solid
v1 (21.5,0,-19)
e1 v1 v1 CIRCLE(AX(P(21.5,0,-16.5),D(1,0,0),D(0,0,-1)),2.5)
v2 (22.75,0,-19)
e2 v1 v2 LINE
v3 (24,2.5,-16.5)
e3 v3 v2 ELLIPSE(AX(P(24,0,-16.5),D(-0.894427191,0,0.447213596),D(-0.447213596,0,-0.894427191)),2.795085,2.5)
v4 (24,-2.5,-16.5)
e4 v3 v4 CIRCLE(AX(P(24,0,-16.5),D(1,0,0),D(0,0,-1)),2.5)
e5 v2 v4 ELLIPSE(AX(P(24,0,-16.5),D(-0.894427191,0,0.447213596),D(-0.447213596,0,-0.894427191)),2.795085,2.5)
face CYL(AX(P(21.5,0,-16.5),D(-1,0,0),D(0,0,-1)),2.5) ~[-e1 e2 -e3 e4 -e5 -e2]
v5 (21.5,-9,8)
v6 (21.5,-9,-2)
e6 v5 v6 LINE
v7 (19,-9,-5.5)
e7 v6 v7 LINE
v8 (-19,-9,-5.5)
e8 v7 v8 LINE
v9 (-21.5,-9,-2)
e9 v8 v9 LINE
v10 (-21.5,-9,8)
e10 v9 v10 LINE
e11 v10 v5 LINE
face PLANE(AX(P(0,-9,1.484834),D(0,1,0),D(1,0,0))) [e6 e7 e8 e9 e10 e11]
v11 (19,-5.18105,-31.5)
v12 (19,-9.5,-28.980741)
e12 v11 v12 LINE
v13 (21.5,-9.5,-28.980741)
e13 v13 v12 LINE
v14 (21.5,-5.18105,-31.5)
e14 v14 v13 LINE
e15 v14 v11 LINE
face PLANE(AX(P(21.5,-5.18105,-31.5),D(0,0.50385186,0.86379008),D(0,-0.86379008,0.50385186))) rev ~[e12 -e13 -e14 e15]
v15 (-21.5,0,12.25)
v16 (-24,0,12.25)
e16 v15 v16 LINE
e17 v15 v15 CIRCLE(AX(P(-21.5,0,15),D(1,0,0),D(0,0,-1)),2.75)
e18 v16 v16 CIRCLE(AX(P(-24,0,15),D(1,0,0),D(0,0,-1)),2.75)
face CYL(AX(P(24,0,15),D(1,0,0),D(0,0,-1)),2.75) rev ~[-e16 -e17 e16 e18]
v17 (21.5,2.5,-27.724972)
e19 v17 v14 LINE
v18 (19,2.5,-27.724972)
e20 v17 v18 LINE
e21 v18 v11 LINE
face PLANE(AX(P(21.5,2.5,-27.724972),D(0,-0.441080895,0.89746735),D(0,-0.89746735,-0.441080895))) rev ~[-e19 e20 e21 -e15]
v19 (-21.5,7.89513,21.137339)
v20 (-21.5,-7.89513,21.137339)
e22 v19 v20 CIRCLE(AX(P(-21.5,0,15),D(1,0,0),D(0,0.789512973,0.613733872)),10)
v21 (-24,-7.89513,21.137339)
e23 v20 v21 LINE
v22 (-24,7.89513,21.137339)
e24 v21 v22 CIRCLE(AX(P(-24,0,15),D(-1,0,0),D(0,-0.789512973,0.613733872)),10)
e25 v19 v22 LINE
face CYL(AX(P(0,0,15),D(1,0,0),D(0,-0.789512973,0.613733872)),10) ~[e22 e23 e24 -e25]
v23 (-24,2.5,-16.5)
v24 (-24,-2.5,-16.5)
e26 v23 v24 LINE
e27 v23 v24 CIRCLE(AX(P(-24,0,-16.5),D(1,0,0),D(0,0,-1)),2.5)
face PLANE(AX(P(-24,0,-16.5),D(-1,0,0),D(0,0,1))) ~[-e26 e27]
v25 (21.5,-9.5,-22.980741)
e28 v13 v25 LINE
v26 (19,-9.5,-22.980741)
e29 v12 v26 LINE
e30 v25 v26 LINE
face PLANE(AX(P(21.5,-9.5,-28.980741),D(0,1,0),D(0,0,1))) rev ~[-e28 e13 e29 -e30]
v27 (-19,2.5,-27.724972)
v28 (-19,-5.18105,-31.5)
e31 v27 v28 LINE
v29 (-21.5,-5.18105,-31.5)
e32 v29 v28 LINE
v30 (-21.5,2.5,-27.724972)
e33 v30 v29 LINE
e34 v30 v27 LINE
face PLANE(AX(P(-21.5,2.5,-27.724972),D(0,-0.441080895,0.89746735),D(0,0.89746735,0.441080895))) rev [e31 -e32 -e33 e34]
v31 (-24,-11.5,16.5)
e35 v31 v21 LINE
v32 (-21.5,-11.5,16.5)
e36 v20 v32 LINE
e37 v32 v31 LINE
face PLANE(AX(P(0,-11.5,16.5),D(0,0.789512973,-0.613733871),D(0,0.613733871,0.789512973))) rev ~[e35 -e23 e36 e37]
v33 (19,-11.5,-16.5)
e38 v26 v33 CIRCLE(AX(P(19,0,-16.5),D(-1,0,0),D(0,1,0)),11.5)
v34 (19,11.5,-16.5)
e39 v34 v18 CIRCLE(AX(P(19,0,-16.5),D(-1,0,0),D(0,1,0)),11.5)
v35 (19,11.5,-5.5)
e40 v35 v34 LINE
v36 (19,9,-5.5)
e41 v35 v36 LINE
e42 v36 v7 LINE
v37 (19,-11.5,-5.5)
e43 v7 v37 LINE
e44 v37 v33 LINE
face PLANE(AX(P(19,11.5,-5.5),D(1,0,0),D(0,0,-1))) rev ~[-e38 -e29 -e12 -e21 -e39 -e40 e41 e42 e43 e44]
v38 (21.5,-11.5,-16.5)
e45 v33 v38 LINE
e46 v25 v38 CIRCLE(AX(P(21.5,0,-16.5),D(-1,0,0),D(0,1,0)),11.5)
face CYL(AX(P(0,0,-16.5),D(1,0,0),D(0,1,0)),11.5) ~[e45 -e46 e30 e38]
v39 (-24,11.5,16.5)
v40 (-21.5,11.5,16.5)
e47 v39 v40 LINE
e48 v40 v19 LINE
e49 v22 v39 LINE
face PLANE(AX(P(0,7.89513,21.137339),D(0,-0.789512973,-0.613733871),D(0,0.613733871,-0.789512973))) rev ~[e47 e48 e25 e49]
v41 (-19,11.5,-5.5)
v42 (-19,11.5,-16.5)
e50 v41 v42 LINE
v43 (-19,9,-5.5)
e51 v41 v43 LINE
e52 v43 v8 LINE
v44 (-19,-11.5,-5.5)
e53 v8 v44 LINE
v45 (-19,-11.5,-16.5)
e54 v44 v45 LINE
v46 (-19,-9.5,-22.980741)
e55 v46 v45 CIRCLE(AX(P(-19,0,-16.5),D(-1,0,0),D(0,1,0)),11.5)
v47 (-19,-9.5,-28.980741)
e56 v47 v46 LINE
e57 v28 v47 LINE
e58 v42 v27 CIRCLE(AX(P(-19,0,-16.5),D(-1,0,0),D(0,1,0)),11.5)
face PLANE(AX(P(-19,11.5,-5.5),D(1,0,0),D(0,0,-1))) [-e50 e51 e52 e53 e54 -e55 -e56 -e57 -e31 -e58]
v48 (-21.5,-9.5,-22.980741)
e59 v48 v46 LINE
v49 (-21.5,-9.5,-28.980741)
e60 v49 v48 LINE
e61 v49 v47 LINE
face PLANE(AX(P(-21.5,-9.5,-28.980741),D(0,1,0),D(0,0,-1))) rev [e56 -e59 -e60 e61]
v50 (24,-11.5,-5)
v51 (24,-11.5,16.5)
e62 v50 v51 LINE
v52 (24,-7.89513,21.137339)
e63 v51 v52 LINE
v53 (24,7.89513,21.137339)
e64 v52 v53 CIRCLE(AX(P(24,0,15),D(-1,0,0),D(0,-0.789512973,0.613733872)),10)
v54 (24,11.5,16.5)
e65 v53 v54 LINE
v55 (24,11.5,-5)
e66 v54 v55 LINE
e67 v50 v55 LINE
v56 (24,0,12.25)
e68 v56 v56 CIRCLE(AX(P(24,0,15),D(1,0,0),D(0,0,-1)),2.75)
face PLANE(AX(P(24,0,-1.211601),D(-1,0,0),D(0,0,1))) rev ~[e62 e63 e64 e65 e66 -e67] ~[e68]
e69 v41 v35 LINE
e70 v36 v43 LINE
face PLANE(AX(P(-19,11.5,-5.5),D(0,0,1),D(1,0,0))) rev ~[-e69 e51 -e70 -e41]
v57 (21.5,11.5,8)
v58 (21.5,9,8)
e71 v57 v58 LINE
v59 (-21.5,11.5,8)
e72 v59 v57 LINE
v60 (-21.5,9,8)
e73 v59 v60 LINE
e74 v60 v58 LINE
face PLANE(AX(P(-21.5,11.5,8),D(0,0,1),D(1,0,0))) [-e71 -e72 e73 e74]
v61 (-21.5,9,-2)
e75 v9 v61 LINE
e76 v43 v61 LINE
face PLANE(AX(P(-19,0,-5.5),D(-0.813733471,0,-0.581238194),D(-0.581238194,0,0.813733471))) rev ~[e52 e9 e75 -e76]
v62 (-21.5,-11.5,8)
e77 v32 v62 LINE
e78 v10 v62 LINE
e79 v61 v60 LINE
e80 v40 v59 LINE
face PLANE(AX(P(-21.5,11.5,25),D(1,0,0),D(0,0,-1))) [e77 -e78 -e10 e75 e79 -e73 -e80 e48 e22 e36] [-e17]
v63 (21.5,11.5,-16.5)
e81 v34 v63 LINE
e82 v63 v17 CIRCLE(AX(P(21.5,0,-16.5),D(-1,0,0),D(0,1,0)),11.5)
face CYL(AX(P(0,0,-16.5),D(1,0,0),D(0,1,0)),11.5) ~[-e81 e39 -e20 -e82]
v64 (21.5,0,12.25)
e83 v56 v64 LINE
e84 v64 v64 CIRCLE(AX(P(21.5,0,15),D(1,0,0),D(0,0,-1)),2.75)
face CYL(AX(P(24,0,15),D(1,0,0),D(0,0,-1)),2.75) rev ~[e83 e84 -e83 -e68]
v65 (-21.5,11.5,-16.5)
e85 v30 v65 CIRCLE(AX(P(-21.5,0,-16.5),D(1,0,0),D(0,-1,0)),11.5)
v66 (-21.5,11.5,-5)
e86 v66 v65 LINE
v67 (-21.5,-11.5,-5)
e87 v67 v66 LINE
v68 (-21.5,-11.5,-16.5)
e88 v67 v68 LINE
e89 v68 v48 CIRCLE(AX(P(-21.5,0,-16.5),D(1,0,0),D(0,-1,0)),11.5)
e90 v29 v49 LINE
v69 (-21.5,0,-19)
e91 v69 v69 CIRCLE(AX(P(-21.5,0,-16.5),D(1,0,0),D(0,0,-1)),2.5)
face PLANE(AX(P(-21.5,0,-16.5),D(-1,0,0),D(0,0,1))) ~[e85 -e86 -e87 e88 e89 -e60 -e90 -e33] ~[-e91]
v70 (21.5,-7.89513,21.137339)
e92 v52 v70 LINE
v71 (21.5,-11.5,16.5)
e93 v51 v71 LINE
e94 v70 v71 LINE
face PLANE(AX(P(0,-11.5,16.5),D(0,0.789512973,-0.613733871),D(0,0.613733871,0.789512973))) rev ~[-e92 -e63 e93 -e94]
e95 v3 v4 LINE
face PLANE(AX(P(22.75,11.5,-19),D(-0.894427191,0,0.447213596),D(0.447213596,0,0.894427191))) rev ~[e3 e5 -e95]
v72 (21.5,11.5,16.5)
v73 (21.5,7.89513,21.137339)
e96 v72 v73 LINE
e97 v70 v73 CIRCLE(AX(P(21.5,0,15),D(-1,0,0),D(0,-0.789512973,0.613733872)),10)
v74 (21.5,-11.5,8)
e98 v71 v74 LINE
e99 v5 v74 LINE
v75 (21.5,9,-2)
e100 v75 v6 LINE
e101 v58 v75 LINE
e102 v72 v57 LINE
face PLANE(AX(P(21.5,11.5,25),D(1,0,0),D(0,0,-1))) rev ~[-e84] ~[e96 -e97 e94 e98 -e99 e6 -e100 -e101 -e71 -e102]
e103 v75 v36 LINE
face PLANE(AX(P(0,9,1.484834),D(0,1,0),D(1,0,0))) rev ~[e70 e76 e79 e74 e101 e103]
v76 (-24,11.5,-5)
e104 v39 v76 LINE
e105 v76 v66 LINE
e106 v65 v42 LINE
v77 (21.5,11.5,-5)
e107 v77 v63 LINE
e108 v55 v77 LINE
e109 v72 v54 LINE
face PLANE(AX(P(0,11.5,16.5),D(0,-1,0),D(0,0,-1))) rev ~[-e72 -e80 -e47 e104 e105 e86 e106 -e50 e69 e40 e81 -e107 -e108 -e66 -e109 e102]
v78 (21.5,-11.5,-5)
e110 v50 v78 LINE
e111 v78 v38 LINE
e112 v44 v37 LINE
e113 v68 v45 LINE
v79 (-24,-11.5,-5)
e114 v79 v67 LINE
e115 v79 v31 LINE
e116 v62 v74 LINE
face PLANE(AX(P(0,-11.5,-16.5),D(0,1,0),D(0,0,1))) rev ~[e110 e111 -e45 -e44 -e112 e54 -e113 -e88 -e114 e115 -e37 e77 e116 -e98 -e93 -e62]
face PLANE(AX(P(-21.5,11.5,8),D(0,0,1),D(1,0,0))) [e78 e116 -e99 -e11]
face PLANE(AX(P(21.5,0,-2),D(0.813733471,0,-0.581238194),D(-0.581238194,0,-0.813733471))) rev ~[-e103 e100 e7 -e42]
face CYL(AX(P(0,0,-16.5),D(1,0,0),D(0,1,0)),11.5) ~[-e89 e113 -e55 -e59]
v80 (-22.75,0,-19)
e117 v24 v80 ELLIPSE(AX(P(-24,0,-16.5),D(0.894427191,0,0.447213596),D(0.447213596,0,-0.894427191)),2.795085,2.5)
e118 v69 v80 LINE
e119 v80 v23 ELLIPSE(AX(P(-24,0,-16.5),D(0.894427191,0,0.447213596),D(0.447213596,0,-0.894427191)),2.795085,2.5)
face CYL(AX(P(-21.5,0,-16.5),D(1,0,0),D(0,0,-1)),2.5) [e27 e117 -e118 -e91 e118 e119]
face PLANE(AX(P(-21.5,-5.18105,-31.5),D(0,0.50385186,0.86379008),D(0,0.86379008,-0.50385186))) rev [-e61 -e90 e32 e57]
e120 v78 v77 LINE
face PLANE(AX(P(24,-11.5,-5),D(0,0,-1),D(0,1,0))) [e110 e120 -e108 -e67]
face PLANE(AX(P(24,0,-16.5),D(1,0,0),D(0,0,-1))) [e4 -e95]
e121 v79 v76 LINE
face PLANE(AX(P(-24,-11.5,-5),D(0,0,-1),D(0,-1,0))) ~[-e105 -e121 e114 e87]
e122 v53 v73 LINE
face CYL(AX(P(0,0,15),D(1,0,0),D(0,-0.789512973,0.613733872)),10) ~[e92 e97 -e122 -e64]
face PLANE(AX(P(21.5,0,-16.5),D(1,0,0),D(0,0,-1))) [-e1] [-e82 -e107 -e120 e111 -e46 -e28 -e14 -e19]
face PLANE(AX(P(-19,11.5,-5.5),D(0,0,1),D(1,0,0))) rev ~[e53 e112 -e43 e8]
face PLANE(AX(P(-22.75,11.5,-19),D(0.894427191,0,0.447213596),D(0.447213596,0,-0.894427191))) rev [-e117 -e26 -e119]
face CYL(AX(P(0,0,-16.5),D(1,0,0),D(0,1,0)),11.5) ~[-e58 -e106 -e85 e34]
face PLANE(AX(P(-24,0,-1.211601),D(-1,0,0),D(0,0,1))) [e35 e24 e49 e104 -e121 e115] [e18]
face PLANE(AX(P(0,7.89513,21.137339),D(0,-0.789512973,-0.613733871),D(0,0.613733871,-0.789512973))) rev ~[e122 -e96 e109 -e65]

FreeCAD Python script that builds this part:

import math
import FreeCAD as App
import Part
import Sketcher

V = App.Vector


def add_polygon(sketch, points):
    """Adds a closed chain of lines whose ends are joined by coincident constraints."""
    first, n = sketch.GeometryCount, len(points)
    for a, b in zip(points, points[1:] + points[:1]):
        sketch.addGeometry(Part.LineSegment(App.Vector(*a, 0), App.Vector(*b, 0)), False)
    for i in range(n):
        sketch.addConstraint(Sketcher.Constraint("Coincident", first + i, 2, first + (i + 1) % n, 1))

doc = App.newDocument("Part")
body = doc.addObject("PartDesign::Body", "Body")

# Sketch on YZ plane
sketch1 = body.newObject("Sketcher::SketchObject", "Sketch")
sketch1.AttachmentSupport = (doc.getObject("YZ_Plane"), [""])
sketch1.MapMode = "FlatFace"
sketch1.addGeometry([
    Part.LineSegment(V(-11.5, 16.5, 0), V(-11.5, -16.5, 0)),  # 0
    Part.ArcOfCircle(Part.Circle(V(0, -16.5, 0), V(0, 0, 1), 11.5), math.radians(180), math.radians(360)),  # 1
    Part.LineSegment(V(11.5, -16.5, 0), V(11.5, 16.5, 0)),  # 2
    Part.LineSegment(V(11.5, 16.5, 0), V(7.89513, 21.137339, 0)),  # 3
    Part.ArcOfCircle(Part.Circle(V(0, 15, 0), V(0, 0, 1), 10), math.radians(37.859979), math.radians(142.140021)),  # 4
    Part.LineSegment(V(-7.89513, 21.137339, 0), V(-11.5, 16.5, 0)),  # 5
], False)
sketch1.addConstraint([
    Sketcher.Constraint("Tangent", 0, 2, 1, 1),
    Sketcher.Constraint("Tangent", 1, 2, 2, 1),
    Sketcher.Constraint("Coincident", 2, 2, 3, 1),
    Sketcher.Constraint("Tangent", 3, 2, 4, 1),
    Sketcher.Constraint("Tangent", 4, 2, 5, 1),
    Sketcher.Constraint("Coincident", 5, 2, 0, 1),
    Sketcher.Constraint("Vertical", 0),
    Sketcher.Constraint("Vertical", 2),
    Sketcher.Constraint("Symmetric", 0, 2, 2, 2, -1, 1),
    Sketcher.Constraint("Symmetric", 3, 2, 4, 2, -2),
    Sketcher.Constraint("Radius", 4, 10.0),
    Sketcher.Constraint("Radius", 1, 11.5),
    Sketcher.Constraint("DistanceY", 0, 2, 0, 1, 33.0),
    Sketcher.Constraint("DistanceY", -1, 1, 4, 3, 15.0),
])
pad1 = body.newObject("PartDesign::Pad", "Pad")
pad1.Profile = sketch1
pad1.Length = 48
pad1.Midplane = True

# Sketch on YZ plane
sketch2 = body.newObject("Sketcher::SketchObject", "Sketch001")
sketch2.AttachmentSupport = (doc.getObject("YZ_Plane"), [""])
sketch2.MapMode = "FlatFace"
sketch2.AttachmentOffset = App.Placement(V(0, 0, 24), App.Rotation())
add_polygon(sketch2, [(11.5, -5), (-11.5, -5), (-11.5, -28), (11.5, -28)])  # lines 0-3
sketch2.addConstraint([
    Sketcher.Constraint("Horizontal", 0),
    Sketcher.Constraint("Vertical", 1),
    Sketcher.Constraint("Horizontal", 2),
    Sketcher.Constraint("Vertical", 3),
    Sketcher.Constraint("Equal", 2, 1),
    Sketcher.Constraint("DistanceX", 0, 2, 0, 1, 23.0),
    Sketcher.Constraint("DistanceY", 0, 2, -1, 1, 5.0),
    Sketcher.Constraint("DistanceX", 0, 2, -1, 1, 11.5),
])
pocket1 = body.newObject("PartDesign::Pocket", "Pocket")
pocket1.Profile = sketch2
pocket1.Length = 2.5
doc.recompute()

mirrored = body.newObject("PartDesign::Mirrored", "Mirrored")
mirrored.Originals = [pocket1]
mirrored.MirrorPlane = (doc.getObject("YZ_Plane"), [""])
body.Tip = mirrored

# Sketch on XZ plane
sketch3 = body.newObject("Sketcher::SketchObject", "Sketch002")
sketch3.AttachmentSupport = (doc.getObject("XZ_Plane"), [""])
sketch3.MapMode = "FlatFace"
sketch3.AttachmentOffset = App.Placement(V(0, 0, -11.5), App.Rotation())
add_polygon(sketch3, [(-21.5, 8), (-21.5, 25), (21.5, 25), (21.5, 8)])  # lines 0-3
sketch3.addConstraint([
    Sketcher.Constraint("Vertical", 0),
    Sketcher.Constraint("Horizontal", 1),
    Sketcher.Constraint("Vertical", 2),
    Sketcher.Constraint("Horizontal", 3),
    Sketcher.Constraint("DistanceX", 1, 1, 1, 2, 43.0),
    Sketcher.Constraint("DistanceY", 0, 1, 0, 2, 17.0),
    Sketcher.Constraint("DistanceY", -1, 1, 0, 2, 25.0),
    Sketcher.Constraint("DistanceX", 0, 2, -1, 1, 21.5),
])
pocket2 = body.newObject("PartDesign::Pocket", "Pocket001")
pocket2.Profile = sketch3
pocket2.Type = "ThroughAll"
pocket2.Reversed = True

# Sketch on XZ plane
sketch4 = body.newObject("Sketcher::SketchObject", "Sketch003")
sketch4.AttachmentSupport = (doc.getObject("XZ_Plane"), [""])
sketch4.MapMode = "FlatFace"
sketch4.AttachmentOffset = App.Placement(V(0, 0, -11.5), App.Rotation())
add_polygon(sketch4, [(-19, -28), (-19, -5.5), (19, -5.5), (19, -28)])  # lines 0-3
sketch4.addConstraint([
    Sketcher.Constraint("Vertical", 0),
    Sketcher.Constraint("Horizontal", 1),
    Sketcher.Constraint("Vertical", 2),
    Sketcher.Constraint("Horizontal", 3),
    Sketcher.Constraint("DistanceX", 1, 1, 1, 2, 38.0),
    Sketcher.Constraint("DistanceY", 0, 1, 0, 2, 22.5),
    Sketcher.Constraint("DistanceX", 0, 2, -1, 1, 19.0),
    Sketcher.Constraint("DistanceY", 2, 2, -1, 1, 28.0),
])
pocket3 = body.newObject("PartDesign::Pocket", "Pocket002")
pocket3.Profile = sketch4
pocket3.Type = "ThroughAll"
pocket3.Reversed = True

# Sketch on XZ plane
sketch5 = body.newObject("Sketcher::SketchObject", "Sketch004")
sketch5.AttachmentSupport = (doc.getObject("XZ_Plane"), [""])
sketch5.MapMode = "FlatFace"
add_polygon(sketch5, [(-19, -5.5), (-21.5, -2), (-21.5, 8), (21.5, 8), (21.5, -2), (19, -5.5)])  # lines 0-5
sketch5.addConstraint([
    Sketcher.Constraint("Vertical", 1),
    Sketcher.Constraint("Horizontal", 2),
    Sketcher.Constraint("Vertical", 3),
    Sketcher.Constraint("Horizontal", 5),
    Sketcher.Constraint("Symmetric", 0, 2, 3, 2, -2),
    Sketcher.Constraint("Equal", 0, 4),
    Sketcher.Constraint("DistanceX", 2, 1, 2, 2, 43.0),
    Sketcher.Constraint("DistanceX", 5, 2, 5, 1, 38.0),
    Sketcher.Constraint("DistanceY", 1, 1, 1, 2, 10.0),
    Sketcher.Constraint("DistanceY", 0, 2, -1, 1, 2.0),
    Sketcher.Constraint("DistanceY", 4, 2, -1, 1, 5.5),
])
pocket4 = body.newObject("PartDesign::Pocket", "Pocket003")
pocket4.Profile = sketch5
pocket4.Length = 18
pocket4.Midplane = True

# Sketch on YZ plane
sketch6 = body.newObject("Sketcher::SketchObject", "Sketch005")
sketch6.AttachmentSupport = (doc.getObject("YZ_Plane"), [""])
sketch6.MapMode = "FlatFace"
sketch6.AttachmentOffset = App.Placement(V(0, 0, 24), App.Rotation())
sketch6.addGeometry(Part.Circle(V(0, 15, 0), V(0, 0, 1), 2.75), False)
sketch6.addConstraint([
    Sketcher.Constraint("PointOnObject", 0, 3, -2),
    Sketcher.Constraint("Diameter", 0, 5.5),
    Sketcher.Constraint("DistanceY", -1, 1, 0, 3, 15.0),
])
pocket5 = body.newObject("PartDesign::Pocket", "Pocket004")
pocket5.Profile = sketch6
pocket5.Type = "ThroughAll"

# Sketch on YZ plane
sketch7 = body.newObject("Sketcher::SketchObject", "Sketch006")
sketch7.AttachmentSupport = (doc.getObject("YZ_Plane"), [""])
sketch7.MapMode = "FlatFace"
sketch7.AttachmentOffset = App.Placement(V(0, 0, 21.5), App.Rotation())
sketch7.addGeometry(Part.Circle(V(0, -16.5, 0), V(0, 0, 1), 2.5), False)
sketch7.addConstraint([
    Sketcher.Constraint("PointOnObject", 0, 3, -2),
    Sketcher.Constraint("Diameter", 0, 5.0),
    Sketcher.Constraint("DistanceY", 0, 3, -1, 1, 16.5),
])
pad2 = body.newObject("PartDesign::Pad", "Pad001")
pad2.Profile = sketch7
pad2.Length = 2.5

# Sketch on XZ plane
sketch8 = body.newObject("Sketcher::SketchObject", "Sketch007")
sketch8.AttachmentSupport = (doc.getObject("XZ_Plane"), [""])
sketch8.MapMode = "FlatFace"
sketch8.AttachmentOffset = App.Placement(V(0, 0, -11.5), App.Rotation())
add_polygon(sketch8, [(22.75, -19), (24, -16.5), (24, -19)])  # lines 0-2
sketch8.addConstraint([
    Sketcher.Constraint("Vertical", 1),
    Sketcher.Constraint("Horizontal", 2),
    Sketcher.Constraint("DistanceY", 1, 2, 1, 1, 2.5),
    Sketcher.Constraint("DistanceX", -1, 1, 0, 2, 24.0),
    Sketcher.Constraint("DistanceY", 1, 2, -1, 1, 19.0),
    Sketcher.Constraint("DistanceX", 2, 2, 2, 1, 1.25),
])
pocket6 = body.newObject("PartDesign::Pocket", "Pocket005")
pocket6.Profile = sketch8
pocket6.Type = "ThroughAll"
pocket6.Reversed = True

# Sketch on YZ plane
sketch9 = body.newObject("Sketcher::SketchObject", "Sketch008")
sketch9.AttachmentSupport = (doc.getObject("YZ_Plane"), [""])
sketch9.MapMode = "FlatFace"
sketch9.AttachmentOffset = App.Placement(V(0, 0, 21.5), App.Rotation())
sketch9.addGeometry([
    Part.LineSegment(V(-5.18105, -31.5, 0), V(2.5, -27.724972, 0)),
    Part.ArcOfCircle(Part.Circle(V(0, -16.5, 0), V(0, 0, 1), 11.5), math.radians(-145.698847), math.radians(-77.444142)),
    Part.LineSegment(V(-9.5, -22.980741, 0), V(-9.5, -28.980741, 0)),
    Part.LineSegment(V(-9.5, -28.980741, 0), V(-5.18105, -31.5, 0)),
], False)
sketch9.addConstraint([
    Sketcher.Constraint("Coincident", 0, 2, 1, 2),
    Sketcher.Constraint("Coincident", 1, 1, 2, 1),
    Sketcher.Constraint("Coincident", 2, 2, 3, 1),
    Sketcher.Constraint("Coincident", 3, 2, 0, 1),
    Sketcher.Constraint("Vertical", 2),
    Sketcher.Constraint("PointOnObject", 1, 3, -2),
    Sketcher.Constraint("Radius", 1, 11.5),
    Sketcher.Constraint("DistanceY", 2, 2, 2, 1, 6.0),
    Sketcher.Constraint("Distance", 3, 5.0),
    Sketcher.Constraint("DistanceX", 1, 1, 0, 2, 12.0),
    Sketcher.Constraint("DistanceY", 3, 2, 1, 3, 15.0),
    Sketcher.Constraint("DistanceY", 1, 3, -1, 1, 16.5),
    Sketcher.Constraint("DistanceX", -1, 1, 0, 2, 2.5),
])
pad3 = body.newObject("PartDesign::Pad", "Pad002")
pad3.Profile = sketch9
pad3.Length = 2.5
pad3.Reversed = True
doc.recompute()

mirrored2 = body.newObject("PartDesign::Mirrored", "Mirrored001")
mirrored2.Originals = [pad2, pocket6, pad3]
mirrored2.MirrorPlane = (doc.getObject("YZ_Plane"), [""])
body.Tip = mirrored2

doc.recompute()
